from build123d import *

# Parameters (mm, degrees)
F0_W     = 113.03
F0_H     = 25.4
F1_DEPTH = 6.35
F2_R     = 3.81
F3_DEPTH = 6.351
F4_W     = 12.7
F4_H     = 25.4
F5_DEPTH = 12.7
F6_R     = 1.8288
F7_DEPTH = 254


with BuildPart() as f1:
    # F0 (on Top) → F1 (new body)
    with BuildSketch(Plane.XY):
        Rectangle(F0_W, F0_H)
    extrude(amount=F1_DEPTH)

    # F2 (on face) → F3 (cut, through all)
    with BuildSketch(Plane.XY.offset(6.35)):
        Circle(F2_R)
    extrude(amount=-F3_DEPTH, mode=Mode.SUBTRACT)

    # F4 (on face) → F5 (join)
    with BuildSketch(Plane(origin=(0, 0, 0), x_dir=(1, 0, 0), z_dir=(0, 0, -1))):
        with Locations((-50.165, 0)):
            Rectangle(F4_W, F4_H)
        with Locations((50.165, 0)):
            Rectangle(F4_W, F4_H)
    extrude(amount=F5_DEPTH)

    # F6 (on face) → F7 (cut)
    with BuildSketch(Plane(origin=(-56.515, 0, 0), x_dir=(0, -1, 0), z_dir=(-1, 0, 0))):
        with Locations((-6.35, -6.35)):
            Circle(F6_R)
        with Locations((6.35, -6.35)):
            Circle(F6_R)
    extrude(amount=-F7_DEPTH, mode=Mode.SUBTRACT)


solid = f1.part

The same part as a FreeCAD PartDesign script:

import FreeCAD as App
import Part
import Sketcher
from FreeCAD import Vector
Q = App.Units.Quantity

doc = App.newDocument("Part")
body = doc.addObject("PartDesign::Body", "Body")

# Sketch on XY plane
sketch1 = body.newObject("Sketcher::SketchObject", "Sketch")
sketch1.AttachmentSupport = (doc.getObject("XY_Plane"), [""])
sketch1.MapMode = "FlatFace"
sketch1.addGeometry(Part.LineSegment(Vector(-57, 13, 0), Vector(-57, -13, 0)), False)
sketch1.addGeometry(Part.LineSegment(Vector(-57, -13, 0), Vector(57, -13, 0)), False)
sketch1.addGeometry(Part.LineSegment(Vector(57, -13, 0), Vector(57, 13, 0)), False)
sketch1.addGeometry(Part.LineSegment(Vector(57, 13, 0), Vector(-57, 13, 0)), False)
sketch1.addConstraint(Sketcher.Constraint("Coincident", 0, 2, 1, 1))
sketch1.addConstraint(Sketcher.Constraint("Coincident", 1, 2, 2, 1))
sketch1.addConstraint(Sketcher.Constraint("Coincident", 2, 2, 3, 1))
sketch1.addConstraint(Sketcher.Constraint("Coincident", 3, 2, 0, 1))
sketch1.addConstraint(Sketcher.Constraint("Vertical", 0))
sketch1.addConstraint(Sketcher.Constraint("Horizontal", 1))
sketch1.addConstraint(Sketcher.Constraint("Vertical", 2))
sketch1.addConstraint(Sketcher.Constraint("Horizontal", 3))
sketch1.addConstraint(Sketcher.Constraint("Symmetric", 0, 2, 2, 2, -1, 1))
sketch1.addConstraint(Sketcher.Constraint("DistanceY", 0, 2, 0, 1, Q("1 in")))
sketch1.addConstraint(Sketcher.Constraint("DistanceX", 1, 1, 1, 2, Q("4.45 in")))
pad1 = body.newObject("PartDesign::Pad", "Pad")
pad1.Profile = sketch1
pad1.Length = Q("0.25 in")

# Sketch on XY plane
sketch2 = body.newObject("Sketcher::SketchObject", "Sketch001")
sketch2.AttachmentSupport = (doc.getObject("XY_Plane"), [""])
sketch2.MapMode = "FlatFace"
sketch2.AttachmentOffset = App.Placement(Vector(0, 0, 0.25 * 25.4), App.Rotation())
sketch2.addGeometry(Part.Circle(Vector(0, 0, 0), Vector(0, 0, 1), 3.8), False)
sketch2.addConstraint(Sketcher.Constraint("Coincident", 0, 3, -1, 1))
sketch2.addConstraint(Sketcher.Constraint("Diameter", 0, Q("0.3 in")))
pocket1 = body.newObject("PartDesign::Pocket", "Pocket")
pocket1.Profile = sketch2
pocket1.Type = "ThroughAll"

# Sketch on XY plane
sketch3 = body.newObject("Sketcher::SketchObject", "Sketch002")
sketch3.AttachmentSupport = (doc.getObject("XY_Plane"), [""])
sketch3.MapMode = "FlatFace"
sketch3.addGeometry(Part.LineSegment(Vector(-57, -13, 0), Vector(-57, 13, 0)), False)
sketch3.addGeometry(Part.LineSegment(Vector(-57, 13, 0), Vector(-44, 13, 0)), False)
sketch3.addGeometry(Part.LineSegment(Vector(-44, 13, 0), Vector(-44, -13, 0)), False)
sketch3.addGeometry(Part.LineSegment(Vector(-44, -13, 0), Vector(-57, -13, 0)), False)
sketch3.addGeometry(Part.LineSegment(Vector(44, -13, 0), Vector(44, 13, 0)), False)
sketch3.addGeometry(Part.LineSegment(Vector(44, 13, 0), Vector(57, 13, 0)), False)
sketch3.addGeometry(Part.LineSegment(Vector(57, 13, 0), Vector(57, -13, 0)), False)
sketch3.addGeometry(Part.LineSegment(Vector(57, -13, 0), Vector(44, -13, 0)), False)
sketch3.addConstraint(Sketcher.Constraint("Coincident", 0, 2, 1, 1))
sketch3.addConstraint(Sketcher.Constraint("Coincident", 1, 2, 2, 1))
sketch3.addConstraint(Sketcher.Constraint("Coincident", 2, 2, 3, 1))
sketch3.addConstraint(Sketcher.Constraint("Coincident", 3, 2, 0, 1))
sketch3.addConstraint(Sketcher.Constraint("Coincident", 4, 2, 5, 1))
sketch3.addConstraint(Sketcher.Constraint("Coincident", 5, 2, 6, 1))
sketch3.addConstraint(Sketcher.Constraint("Coincident", 6, 2, 7, 1))
sketch3.addConstraint(Sketcher.Constraint("Coincident", 7, 2, 4, 1))
sketch3.addConstraint(Sketcher.Constraint("Vertical", 0))
sketch3.addConstraint(Sketcher.Constraint("Horizontal", 1))
sketch3.addConstraint(Sketcher.Constraint("Vertical", 2))
sketch3.addConstraint(Sketcher.Constraint("Horizontal", 3))
sketch3.addConstraint(Sketcher.Constraint("Vertical", 4))
sketch3.addConstraint(Sketcher.Constraint("Horizontal", 5))
sketch3.addConstraint(Sketcher.Constraint("Vertical", 6))
sketch3.addConstraint(Sketcher.Constraint("Horizontal", 7))
sketch3.addConstraint(Sketcher.Constraint("Symmetric", 2, 2, 4, 2, -1, 1))
sketch3.addConstraint(Sketcher.Constraint("Symmetric", 0, 2, 6, 2, -1, 1))
sketch3.addConstraint(Sketcher.Constraint("Horizontal", 1, 2, 4, 2))
sketch3.addConstraint(Sketcher.Constraint("DistanceY", 0, 1, 0, 2, Q("1 in")))
sketch3.addConstraint(Sketcher.Constraint("DistanceX", 1, 1, 1, 2, Q("0.5 in")))
sketch3.addConstraint(Sketcher.Constraint("DistanceX", 1, 2, 4, 2, Q("3.45 in")))
pad2 = body.newObject("PartDesign::Pad", "Pad001")
pad2.Profile = sketch3
pad2.Length = Q("0.5 in")
pad2.Reversed = True

# Sketch on YZ plane
sketch4 = body.newObject("Sketcher::SketchObject", "Sketch003")
sketch4.AttachmentSupport = (doc.getObject("YZ_Plane"), [""])
sketch4.MapMode = "FlatFace"
sketch4.AttachmentOffset = App.Placement(Vector(0, 0, -2.225 * 25.4), App.Rotation())
sketch4.addGeometry(Part.Circle(Vector(6.3, -6.3, 0), Vector(0, 0, 1), 1.8), False)
sketch4.addGeometry(Part.Circle(Vector(-6.3, -6.3, 0), Vector(0, 0, 1), 1.8), False)
sketch4.addConstraint(Sketcher.Constraint("Equal", 0, 1))
sketch4.addConstraint(Sketcher.Constraint("Symmetric", 0, 3, 1, 3, -2))
sketch4.addConstraint(Sketcher.Constraint("Diameter", 0, Q("0.144 in")))
sketch4.addConstraint(Sketcher.Constraint("DistanceX", 1, 3, 0, 3, Q("0.5 in")))
sketch4.addConstraint(Sketcher.Constraint("DistanceY", 0, 3, -1, 1, Q("0.25 in")))
pocket2 = body.newObject("PartDesign::Pocket", "Pocket001")
pocket2.Profile = sketch4
pocket2.Length = Q("10 in")
pocket2.Reversed = True

doc.recompute()
